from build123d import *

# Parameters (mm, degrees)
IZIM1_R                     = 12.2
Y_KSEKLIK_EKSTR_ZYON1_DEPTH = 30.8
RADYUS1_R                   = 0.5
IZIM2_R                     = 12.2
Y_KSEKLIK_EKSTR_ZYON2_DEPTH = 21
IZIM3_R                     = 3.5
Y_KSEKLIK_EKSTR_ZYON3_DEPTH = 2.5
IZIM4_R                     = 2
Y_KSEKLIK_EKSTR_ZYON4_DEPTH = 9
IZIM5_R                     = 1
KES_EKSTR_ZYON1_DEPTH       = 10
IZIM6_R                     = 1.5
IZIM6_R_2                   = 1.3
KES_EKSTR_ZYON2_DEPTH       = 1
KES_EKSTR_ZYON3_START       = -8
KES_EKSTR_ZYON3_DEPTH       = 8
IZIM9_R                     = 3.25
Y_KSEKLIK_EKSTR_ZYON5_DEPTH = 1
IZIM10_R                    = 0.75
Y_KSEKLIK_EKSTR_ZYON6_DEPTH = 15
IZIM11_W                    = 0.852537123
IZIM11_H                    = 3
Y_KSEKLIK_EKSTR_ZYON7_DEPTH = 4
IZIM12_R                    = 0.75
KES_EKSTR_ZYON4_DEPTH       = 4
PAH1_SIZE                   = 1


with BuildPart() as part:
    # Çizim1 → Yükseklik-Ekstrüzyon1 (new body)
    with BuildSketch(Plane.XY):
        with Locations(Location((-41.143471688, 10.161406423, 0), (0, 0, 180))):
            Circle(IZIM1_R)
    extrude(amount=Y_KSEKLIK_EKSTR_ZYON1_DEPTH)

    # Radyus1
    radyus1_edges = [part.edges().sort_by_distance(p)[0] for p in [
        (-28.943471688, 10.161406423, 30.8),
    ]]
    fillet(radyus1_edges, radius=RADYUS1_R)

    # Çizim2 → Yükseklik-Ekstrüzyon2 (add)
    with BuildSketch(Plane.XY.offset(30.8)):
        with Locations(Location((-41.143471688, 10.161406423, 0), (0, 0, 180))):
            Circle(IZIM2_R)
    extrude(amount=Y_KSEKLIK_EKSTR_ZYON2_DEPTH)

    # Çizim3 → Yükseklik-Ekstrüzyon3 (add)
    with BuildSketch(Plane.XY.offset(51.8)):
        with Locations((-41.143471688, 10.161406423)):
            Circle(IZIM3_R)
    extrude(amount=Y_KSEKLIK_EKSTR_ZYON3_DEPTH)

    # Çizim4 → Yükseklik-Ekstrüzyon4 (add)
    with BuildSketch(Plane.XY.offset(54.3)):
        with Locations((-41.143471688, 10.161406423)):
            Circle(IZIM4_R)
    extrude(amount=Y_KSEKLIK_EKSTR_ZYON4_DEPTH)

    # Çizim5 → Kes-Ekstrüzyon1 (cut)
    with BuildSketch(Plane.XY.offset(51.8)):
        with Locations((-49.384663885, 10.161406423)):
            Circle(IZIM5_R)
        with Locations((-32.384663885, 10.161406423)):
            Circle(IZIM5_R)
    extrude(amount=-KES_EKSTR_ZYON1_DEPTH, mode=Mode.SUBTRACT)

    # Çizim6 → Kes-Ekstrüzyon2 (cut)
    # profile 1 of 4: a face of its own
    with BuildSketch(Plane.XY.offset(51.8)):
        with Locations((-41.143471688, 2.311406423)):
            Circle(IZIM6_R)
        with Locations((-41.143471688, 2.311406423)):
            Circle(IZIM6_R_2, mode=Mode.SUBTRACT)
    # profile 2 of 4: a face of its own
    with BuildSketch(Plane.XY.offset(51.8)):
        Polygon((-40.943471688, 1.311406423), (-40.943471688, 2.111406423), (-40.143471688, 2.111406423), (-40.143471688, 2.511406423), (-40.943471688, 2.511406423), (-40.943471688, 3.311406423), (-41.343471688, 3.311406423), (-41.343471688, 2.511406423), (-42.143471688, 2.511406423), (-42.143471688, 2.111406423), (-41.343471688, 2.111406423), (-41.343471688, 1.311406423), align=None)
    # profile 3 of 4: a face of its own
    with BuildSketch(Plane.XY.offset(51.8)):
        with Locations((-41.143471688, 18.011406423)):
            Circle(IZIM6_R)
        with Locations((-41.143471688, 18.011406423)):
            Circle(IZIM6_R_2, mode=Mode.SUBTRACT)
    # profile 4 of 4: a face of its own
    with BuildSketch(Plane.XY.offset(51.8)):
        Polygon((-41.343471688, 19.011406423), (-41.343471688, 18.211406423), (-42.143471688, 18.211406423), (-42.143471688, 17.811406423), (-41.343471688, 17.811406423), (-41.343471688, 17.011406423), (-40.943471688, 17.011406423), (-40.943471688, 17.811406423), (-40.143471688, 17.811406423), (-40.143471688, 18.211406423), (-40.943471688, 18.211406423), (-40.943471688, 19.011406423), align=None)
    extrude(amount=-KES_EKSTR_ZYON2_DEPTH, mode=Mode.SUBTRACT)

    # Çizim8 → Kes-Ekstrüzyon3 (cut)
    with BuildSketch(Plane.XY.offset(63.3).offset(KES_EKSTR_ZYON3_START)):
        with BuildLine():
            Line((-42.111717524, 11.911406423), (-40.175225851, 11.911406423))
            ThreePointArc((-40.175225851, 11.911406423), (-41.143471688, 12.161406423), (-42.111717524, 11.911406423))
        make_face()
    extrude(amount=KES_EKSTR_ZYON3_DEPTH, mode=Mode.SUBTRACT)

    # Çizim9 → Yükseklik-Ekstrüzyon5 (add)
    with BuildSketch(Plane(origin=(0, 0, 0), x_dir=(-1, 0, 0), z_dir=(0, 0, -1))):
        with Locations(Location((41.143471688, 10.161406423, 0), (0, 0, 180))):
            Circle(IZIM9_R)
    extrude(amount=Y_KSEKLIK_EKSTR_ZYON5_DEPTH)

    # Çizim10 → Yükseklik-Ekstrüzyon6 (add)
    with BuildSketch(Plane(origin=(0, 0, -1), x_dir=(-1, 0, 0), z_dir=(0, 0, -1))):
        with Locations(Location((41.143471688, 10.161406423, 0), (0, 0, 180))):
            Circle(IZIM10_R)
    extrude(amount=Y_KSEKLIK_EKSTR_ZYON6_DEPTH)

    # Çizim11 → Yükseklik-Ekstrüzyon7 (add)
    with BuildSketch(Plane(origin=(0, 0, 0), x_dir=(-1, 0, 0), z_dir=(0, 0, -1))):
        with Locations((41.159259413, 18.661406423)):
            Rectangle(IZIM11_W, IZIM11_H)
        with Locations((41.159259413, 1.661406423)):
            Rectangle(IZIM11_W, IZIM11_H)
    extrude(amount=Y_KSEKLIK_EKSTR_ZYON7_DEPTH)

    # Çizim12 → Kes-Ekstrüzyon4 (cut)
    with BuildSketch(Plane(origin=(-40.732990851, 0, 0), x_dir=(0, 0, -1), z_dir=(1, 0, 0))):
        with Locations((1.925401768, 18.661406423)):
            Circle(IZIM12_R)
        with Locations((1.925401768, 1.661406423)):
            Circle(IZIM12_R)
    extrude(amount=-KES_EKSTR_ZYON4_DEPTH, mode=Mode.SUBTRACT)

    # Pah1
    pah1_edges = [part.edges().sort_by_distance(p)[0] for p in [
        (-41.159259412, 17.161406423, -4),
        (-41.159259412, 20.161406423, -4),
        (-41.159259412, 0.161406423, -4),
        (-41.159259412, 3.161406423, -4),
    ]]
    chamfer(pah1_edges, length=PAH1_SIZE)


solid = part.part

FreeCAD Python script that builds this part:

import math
import FreeCAD as App
import Part
import Sketcher

V = App.Vector


def edges_at(feature, points):
    """Names of the edges that pass closest to the given points."""
    edges = feature.Shape.Edges
    near = lambda p: min(range(len(edges)), key=lambda i: edges[i].distToShape(Part.Vertex(*p))[0])
    return sorted({f"Edge{near(p) + 1}" for p in points})


def add_polygon(sketch, points):
    """Adds a closed chain of lines whose ends are joined by coincident constraints."""
    first, n = sketch.GeometryCount, len(points)
    for a, b in zip(points, points[1:] + points[:1]):
        sketch.addGeometry(Part.LineSegment(App.Vector(*a, 0), App.Vector(*b, 0)), False)
    for i in range(n):
        sketch.addConstraint(Sketcher.Constraint("Coincident", first + i, 2, first + (i + 1) % n, 1))

doc = App.newDocument("Part")
body = doc.addObject("PartDesign::Body", "Body")

sketch1 = body.newObject("Sketcher::SketchObject", "Sketch")
sketch1.AttachmentSupport = (doc.getObject("XY_Plane"), [""])
sketch1.MapMode = "FlatFace"
sketch1.addGeometry(Part.Circle(V(-41, 10, 0), V(0, 0, 1), 12), False)
sketch1.addConstraint([
    Sketcher.Constraint("Diameter", 0, 24.4),
    Sketcher.Constraint("DistanceX", 0, 3, -1, 1, 41.143472),
    Sketcher.Constraint("DistanceY", -1, 1, 0, 3, 10.161406),
])
pad1 = body.newObject("PartDesign::Pad", "Pad")
pad1.Profile = sketch1
pad1.Length = 30.8
doc.recompute()

fillet = body.newObject("PartDesign::Fillet", "Fillet")
fillet.Base = (pad1, edges_at(pad1, [(-28.943, 10.161, 30.8)]))
fillet.Radius = 0.5

sketch2 = body.newObject("Sketcher::SketchObject", "Sketch001")
sketch2.AttachmentSupport = (doc.getObject("XY_Plane"), [""])
sketch2.MapMode = "FlatFace"
sketch2.AttachmentOffset = App.Placement(V(0, 0, 30.8), App.Rotation())
sketch2.addGeometry(Part.Circle(V(-41, 10, 0), V(0, 0, 1), 12), False)
sketch2.addConstraint([
    Sketcher.Constraint("Diameter", 0, 24.4),
    Sketcher.Constraint("DistanceX", 0, 3, -1, 1, 41.143472),
    Sketcher.Constraint("DistanceY", -1, 1, 0, 3, 10.161406),
])
pad2 = body.newObject("PartDesign::Pad", "Pad001")
pad2.Profile = sketch2
pad2.Length = 21

sketch3 = body.newObject("Sketcher::SketchObject", "Sketch002")
sketch3.AttachmentSupport = (doc.getObject("XY_Plane"), [""])
sketch3.MapMode = "FlatFace"
sketch3.AttachmentOffset = App.Placement(V(0, 0, 51.8), App.Rotation())
sketch3.addGeometry(Part.Circle(V(-41.1, 10.2, 0), V(0, 0, 1), 3.5), False)
sketch3.addConstraint([
    Sketcher.Constraint("Diameter", 0, 7.0),
    Sketcher.Constraint("DistanceX", 0, 3, -1, 1, 41.143472),
    Sketcher.Constraint("DistanceY", -1, 1, 0, 3, 10.161406),
])
pad3 = body.newObject("PartDesign::Pad", "Pad002")
pad3.Profile = sketch3
pad3.Length = 2.5

sketch4 = body.newObject("Sketcher::SketchObject", "Sketch003")
sketch4.AttachmentSupport = (doc.getObject("XY_Plane"), [""])
sketch4.MapMode = "FlatFace"
sketch4.AttachmentOffset = App.Placement(V(0, 0, 54.3), App.Rotation())
sketch4.addGeometry(Part.Circle(V(-41.1, 10.2, 0), V(0, 0, 1), 2), False)
sketch4.addConstraint([
    Sketcher.Constraint("Diameter", 0, 4.0),
    Sketcher.Constraint("DistanceX", 0, 3, -1, 1, 41.143472),
    Sketcher.Constraint("DistanceY", -1, 1, 0, 3, 10.161406),
])
pad4 = body.newObject("PartDesign::Pad", "Pad003")
pad4.Profile = sketch4
pad4.Length = 9

sketch5 = body.newObject("Sketcher::SketchObject", "Sketch004")
sketch5.AttachmentSupport = (doc.getObject("XY_Plane"), [""])
sketch5.MapMode = "FlatFace"
sketch5.AttachmentOffset = App.Placement(V(0, 0, 51.8), App.Rotation())
sketch5.addGeometry([
    Part.Circle(V(-49.4, 10.2, 0), V(0, 0, 1), 1),
    Part.Circle(V(-32.4, 10.2, 0), V(0, 0, 1), 1),
], False)
sketch5.addConstraint([
    Sketcher.Constraint("Equal", 0, 1),
    Sketcher.Constraint("Horizontal", 0, 3, 1, 3),
    Sketcher.Constraint("Diameter", 0, 2.0),
    Sketcher.Constraint("DistanceX", 0, 3, 1, 3, 17.0),
    Sketcher.Constraint("DistanceX", 0, 3, -1, 1, 49.384664),
    Sketcher.Constraint("DistanceY", -1, 1, 0, 3, 10.161406),
])
pocket1 = body.newObject("PartDesign::Pocket", "Pocket")
pocket1.Profile = sketch5
pocket1.Length = 10

sketch6 = body.newObject("Sketcher::SketchObject", "Sketch005")
sketch6.AttachmentSupport = (doc.getObject("XY_Plane"), [""])
sketch6.MapMode = "FlatFace"
sketch6.AttachmentOffset = App.Placement(V(0, 0, 51.8), App.Rotation())
sketch6.addGeometry(Part.Circle(V(-41.14, 2.31, 0), V(0, 0, 1), 1.5), False)
sketch6.addGeometry(Part.Circle(V(-41.14, 2.31, 0), V(0, 0, 1), 1.3), False)
add_polygon(sketch6, [(-40.94, 1.31), (-40.94, 2.11), (-40.14, 2.11), (-40.14, 2.51), (-40.94, 2.51), (-40.94, 3.31), (-41.34, 3.31), (-41.34, 2.51), (-42.14, 2.51), (-42.14, 2.11), (-41.34, 2.11), (-41.34, 1.31)])
sketch6.addGeometry(Part.Circle(V(-41.14, 18.01, 0), V(0, 0, 1), 1.5), False)
sketch6.addGeometry(Part.Circle(V(-41.14, 18.01, 0), V(0, 0, 1), 1.3), False)
add_polygon(sketch6, [(-41.34, 19.01), (-41.34, 18.21), (-42.14, 18.21), (-42.14, 17.81), (-41.34, 17.81), (-41.34, 17.01), (-40.94, 17.01), (-40.94, 17.81), (-40.14, 17.81), (-40.14, 18.21), (-40.94, 18.21), (-40.94, 19.01)])
sketch6.addConstraint([
    Sketcher.Constraint("Vertical", 2),
    Sketcher.Constraint("Horizontal", 3),
    Sketcher.Constraint("Vertical", 4),
    Sketcher.Constraint("Horizontal", 5),
    Sketcher.Constraint("Vertical", 6),
    Sketcher.Constraint("Horizontal", 7),
    Sketcher.Constraint("Vertical", 8),
    Sketcher.Constraint("Horizontal", 9),
    Sketcher.Constraint("Vertical", 10),
    Sketcher.Constraint("Horizontal", 11),
    Sketcher.Constraint("Vertical", 12),
    Sketcher.Constraint("Horizontal", 13),
    Sketcher.Constraint("Vertical", 16),
    Sketcher.Constraint("Horizontal", 17),
    Sketcher.Constraint("Vertical", 18),
    Sketcher.Constraint("Horizontal", 19),
    Sketcher.Constraint("Vertical", 20),
    Sketcher.Constraint("Horizontal", 21),
    Sketcher.Constraint("Vertical", 22),
    Sketcher.Constraint("Horizontal", 23),
    Sketcher.Constraint("Vertical", 24),
    Sketcher.Constraint("Horizontal", 25),
    Sketcher.Constraint("Vertical", 26),
    Sketcher.Constraint("Horizontal", 27),
    Sketcher.Constraint("Coincident", 1, 3, 0, 3),
    Sketcher.Constraint("Coincident", 15, 3, 14, 3),
    Sketcher.Constraint("Equal", 0, 14),
    Sketcher.Constraint("Equal", 1, 15),
    Sketcher.Constraint("Horizontal", 5, 2, 8, 2),
    Sketcher.Constraint("Horizontal", 3, 2, 10, 2),
    Sketcher.Constraint("Horizontal", 19, 2, 22, 2),
    Sketcher.Constraint("Horizontal", 17, 2, 24, 2),
    Sketcher.Constraint("Vertical", 1, 3, 14, 3),
    Sketcher.Constraint("Vertical", 2, 2, 5, 2),
    Sketcher.Constraint("Vertical", 8, 2, 11, 2),
    Sketcher.Constraint("Vertical", 12, 2, 16, 2),
    Sketcher.Constraint("Vertical", 10, 2, 17, 2),
    Sketcher.Constraint("Vertical", 16, 2, 19, 2),
    Sketcher.Constraint("Vertical", 13, 2, 21, 2),
    Sketcher.Constraint("Vertical", 4, 2, 23, 2),
    Sketcher.Constraint("Vertical", 22, 2, 25, 2),
    Sketcher.Constraint("Equal", 5, 9),
    Sketcher.Constraint("Equal", 25, 2),
    Sketcher.Constraint("Equal", 27, 4),
    Sketcher.Constraint("Equal", 2, 6),
    Sketcher.Constraint("Equal", 12, 16),
    Sketcher.Constraint("Equal", 10, 18),
    Sketcher.Constraint("Equal", 16, 20),
    Sketcher.Constraint("Diameter", 0, 3.0),
    Sketcher.Constraint("Diameter", 1, 2.6),
    Sketcher.Constraint("DistanceX", 3, 1, 3, 2, 0.8),
    Sketcher.Constraint("DistanceX", 7, 2, 7, 1, 0.4),
    Sketcher.Constraint("DistanceX", 0, 3, 3, 2, 1.0),
    Sketcher.Constraint("DistanceY", 0, 3, 6, 2, 1.0),
    Sketcher.Constraint("DistanceY", 20, 2, 14, 3, 1.0),
    Sketcher.Constraint("DistanceY", 0, 3, 14, 3, 15.7),
    Sketcher.Constraint("DistanceX", 0, 3, -1, 1, 41.143472),
    Sketcher.Constraint("DistanceY", -1, 1, 0, 3, 2.311406),
])
pocket2 = body.newObject("PartDesign::Pocket", "Pocket001")
pocket2.Profile = sketch6
pocket2.Length = 1

sketch7 = body.newObject("Sketcher::SketchObject", "Sketch006")
sketch7.AttachmentSupport = (doc.getObject("XY_Plane"), [""])
sketch7.MapMode = "FlatFace"
sketch7.AttachmentOffset = App.Placement(V(0, 0, 55.3), App.Rotation())
sketch7.addGeometry([
    Part.LineSegment(V(-42.1, 11.9, 0), V(-40.2, 11.9, 0)),
    Part.ArcOfCircle(Part.Circle(V(-41.1, 10.2, 0), V(0, 0, 1), 2), math.radians(61), math.radians(119)),
], False)
sketch7.addConstraint([
    Sketcher.Constraint("Coincident", 0, 1, 1, 2),
    Sketcher.Constraint("Coincident", 1, 1, 0, 2),
    Sketcher.Constraint("Horizontal", 0),
    Sketcher.Constraint("Radius", 1, 2.0),
    Sketcher.Constraint("DistanceY", 1, 3, 0, 1, 1.75),
    Sketcher.Constraint("DistanceX", 1, 3, -1, 1, 41.143472),
    Sketcher.Constraint("DistanceY", -1, 1, 1, 3, 10.161406),
])
pocket3 = body.newObject("PartDesign::Pocket", "Pocket002")
pocket3.Profile = sketch7
pocket3.Length = 8
pocket3.Reversed = True

sketch8 = body.newObject("Sketcher::SketchObject", "Sketch007")
sketch8.AttachmentSupport = (doc.getObject("XY_Plane"), [""])
sketch8.MapMode = "FlatFace"
sketch8.addGeometry(Part.Circle(V(-41.1, 10.2, 0), V(0, 0, 1), 3.2), False)
sketch8.addConstraint([
    Sketcher.Constraint("Diameter", 0, 6.5),
    Sketcher.Constraint("DistanceX", 0, 3, -1, 1, 41.143472),
    Sketcher.Constraint("DistanceY", -1, 1, 0, 3, 10.161406),
])
pad5 = body.newObject("PartDesign::Pad", "Pad004")
pad5.Profile = sketch8
pad5.Length = 1
pad5.Reversed = True

sketch9 = body.newObject("Sketcher::SketchObject", "Sketch008")
sketch9.AttachmentSupport = (doc.getObject("XY_Plane"), [""])
sketch9.MapMode = "FlatFace"
sketch9.AttachmentOffset = App.Placement(V(0, 0, -1), App.Rotation())
sketch9.addGeometry(Part.Circle(V(-41.1, 10.2, 0), V(0, 0, 1), 0.8), False)
sketch9.addConstraint([
    Sketcher.Constraint("Diameter", 0, 1.5),
    Sketcher.Constraint("DistanceX", 0, 3, -1, 1, 41.143472),
    Sketcher.Constraint("DistanceY", -1, 1, 0, 3, 10.161406),
])
pad6 = body.newObject("PartDesign::Pad", "Pad005")
pad6.Profile = sketch9
pad6.Length = 15
pad6.Reversed = True

sketch10 = body.newObject("Sketcher::SketchObject", "Sketch009")
sketch10.AttachmentSupport = (doc.getObject("XY_Plane"), [""])
sketch10.MapMode = "FlatFace"
add_polygon(sketch10, [(-40.7, 20.2), (-40.7, 17.2), (-41.6, 17.2), (-41.6, 20.2)])
add_polygon(sketch10, [(-40.7, 3.2), (-40.7, 0.2), (-41.6, 0.2), (-41.6, 3.2)])
sketch10.addConstraint([
    Sketcher.Constraint("Vertical", 0),
    Sketcher.Constraint("Horizontal", 1),
    Sketcher.Constraint("Vertical", 2),
    Sketcher.Constraint("Horizontal", 3),
    Sketcher.Constraint("Vertical", 4),
    Sketcher.Constraint("Horizontal", 5),
    Sketcher.Constraint("Vertical", 6),
    Sketcher.Constraint("Horizontal", 7),
    Sketcher.Constraint("Vertical", 3, 2, 4, 2),
    Sketcher.Constraint("Vertical", 2, 2, 5, 2),
    Sketcher.Constraint("Equal", 2, 4),
    Sketcher.Constraint("DistanceY", 0, 2, 0, 1, 3.0),
    Sketcher.Constraint("DistanceY", 4, 2, 0, 2, 17.0),
    Sketcher.Constraint("DistanceX", 1, 2, 1, 1, 0.852537),
    Sketcher.Constraint("DistanceX", 0, 2, -1, 1, 40.732991),
    Sketcher.Constraint("DistanceY", -1, 1, 0, 2, 17.161406),
])
pad7 = body.newObject("PartDesign::Pad", "Pad006")
pad7.Profile = sketch10
pad7.Length = 4
pad7.Reversed = True

sketch11 = body.newObject("Sketcher::SketchObject", "Sketch010")
sketch11.AttachmentSupport = (doc.getObject("YZ_Plane"), [""])
sketch11.MapMode = "FlatFace"
sketch11.AttachmentOffset = App.Placement(V(0, 0, -40.732991), App.Rotation())
sketch11.addGeometry([
    Part.Circle(V(18.7, -1.9, 0), V(0, 0, 1), 0.8),
    Part.Circle(V(1.7, -1.9, 0), V(0, 0, 1), 0.8),
], False)
sketch11.addConstraint([
    Sketcher.Constraint("Equal", 0, 1),
    Sketcher.Constraint("Horizontal", 0, 3, 1, 3),
    Sketcher.Constraint("Diameter", 0, 1.5),
    Sketcher.Constraint("DistanceX", 1, 3, 0, 3, 17.0),
    Sketcher.Constraint("DistanceY", 0, 3, -1, 1, 1.925402),
    Sketcher.Constraint("DistanceX", -1, 1, 0, 3, 18.661406),
])
pocket4 = body.newObject("PartDesign::Pocket", "Pocket003")
pocket4.Profile = sketch11
pocket4.Length = 4
doc.recompute()

chamfer = body.newObject("PartDesign::Chamfer", "Chamfer")
chamfer.Base = (pocket4, edges_at(pocket4, [
    (-41.159, 17.161, -4),
    (-41.159, 20.161, -4),
    (-41.159, 0.161, -4),
    (-41.159, 3.161, -4),
]))
chamfer.Size = 1

doc.recompute()
